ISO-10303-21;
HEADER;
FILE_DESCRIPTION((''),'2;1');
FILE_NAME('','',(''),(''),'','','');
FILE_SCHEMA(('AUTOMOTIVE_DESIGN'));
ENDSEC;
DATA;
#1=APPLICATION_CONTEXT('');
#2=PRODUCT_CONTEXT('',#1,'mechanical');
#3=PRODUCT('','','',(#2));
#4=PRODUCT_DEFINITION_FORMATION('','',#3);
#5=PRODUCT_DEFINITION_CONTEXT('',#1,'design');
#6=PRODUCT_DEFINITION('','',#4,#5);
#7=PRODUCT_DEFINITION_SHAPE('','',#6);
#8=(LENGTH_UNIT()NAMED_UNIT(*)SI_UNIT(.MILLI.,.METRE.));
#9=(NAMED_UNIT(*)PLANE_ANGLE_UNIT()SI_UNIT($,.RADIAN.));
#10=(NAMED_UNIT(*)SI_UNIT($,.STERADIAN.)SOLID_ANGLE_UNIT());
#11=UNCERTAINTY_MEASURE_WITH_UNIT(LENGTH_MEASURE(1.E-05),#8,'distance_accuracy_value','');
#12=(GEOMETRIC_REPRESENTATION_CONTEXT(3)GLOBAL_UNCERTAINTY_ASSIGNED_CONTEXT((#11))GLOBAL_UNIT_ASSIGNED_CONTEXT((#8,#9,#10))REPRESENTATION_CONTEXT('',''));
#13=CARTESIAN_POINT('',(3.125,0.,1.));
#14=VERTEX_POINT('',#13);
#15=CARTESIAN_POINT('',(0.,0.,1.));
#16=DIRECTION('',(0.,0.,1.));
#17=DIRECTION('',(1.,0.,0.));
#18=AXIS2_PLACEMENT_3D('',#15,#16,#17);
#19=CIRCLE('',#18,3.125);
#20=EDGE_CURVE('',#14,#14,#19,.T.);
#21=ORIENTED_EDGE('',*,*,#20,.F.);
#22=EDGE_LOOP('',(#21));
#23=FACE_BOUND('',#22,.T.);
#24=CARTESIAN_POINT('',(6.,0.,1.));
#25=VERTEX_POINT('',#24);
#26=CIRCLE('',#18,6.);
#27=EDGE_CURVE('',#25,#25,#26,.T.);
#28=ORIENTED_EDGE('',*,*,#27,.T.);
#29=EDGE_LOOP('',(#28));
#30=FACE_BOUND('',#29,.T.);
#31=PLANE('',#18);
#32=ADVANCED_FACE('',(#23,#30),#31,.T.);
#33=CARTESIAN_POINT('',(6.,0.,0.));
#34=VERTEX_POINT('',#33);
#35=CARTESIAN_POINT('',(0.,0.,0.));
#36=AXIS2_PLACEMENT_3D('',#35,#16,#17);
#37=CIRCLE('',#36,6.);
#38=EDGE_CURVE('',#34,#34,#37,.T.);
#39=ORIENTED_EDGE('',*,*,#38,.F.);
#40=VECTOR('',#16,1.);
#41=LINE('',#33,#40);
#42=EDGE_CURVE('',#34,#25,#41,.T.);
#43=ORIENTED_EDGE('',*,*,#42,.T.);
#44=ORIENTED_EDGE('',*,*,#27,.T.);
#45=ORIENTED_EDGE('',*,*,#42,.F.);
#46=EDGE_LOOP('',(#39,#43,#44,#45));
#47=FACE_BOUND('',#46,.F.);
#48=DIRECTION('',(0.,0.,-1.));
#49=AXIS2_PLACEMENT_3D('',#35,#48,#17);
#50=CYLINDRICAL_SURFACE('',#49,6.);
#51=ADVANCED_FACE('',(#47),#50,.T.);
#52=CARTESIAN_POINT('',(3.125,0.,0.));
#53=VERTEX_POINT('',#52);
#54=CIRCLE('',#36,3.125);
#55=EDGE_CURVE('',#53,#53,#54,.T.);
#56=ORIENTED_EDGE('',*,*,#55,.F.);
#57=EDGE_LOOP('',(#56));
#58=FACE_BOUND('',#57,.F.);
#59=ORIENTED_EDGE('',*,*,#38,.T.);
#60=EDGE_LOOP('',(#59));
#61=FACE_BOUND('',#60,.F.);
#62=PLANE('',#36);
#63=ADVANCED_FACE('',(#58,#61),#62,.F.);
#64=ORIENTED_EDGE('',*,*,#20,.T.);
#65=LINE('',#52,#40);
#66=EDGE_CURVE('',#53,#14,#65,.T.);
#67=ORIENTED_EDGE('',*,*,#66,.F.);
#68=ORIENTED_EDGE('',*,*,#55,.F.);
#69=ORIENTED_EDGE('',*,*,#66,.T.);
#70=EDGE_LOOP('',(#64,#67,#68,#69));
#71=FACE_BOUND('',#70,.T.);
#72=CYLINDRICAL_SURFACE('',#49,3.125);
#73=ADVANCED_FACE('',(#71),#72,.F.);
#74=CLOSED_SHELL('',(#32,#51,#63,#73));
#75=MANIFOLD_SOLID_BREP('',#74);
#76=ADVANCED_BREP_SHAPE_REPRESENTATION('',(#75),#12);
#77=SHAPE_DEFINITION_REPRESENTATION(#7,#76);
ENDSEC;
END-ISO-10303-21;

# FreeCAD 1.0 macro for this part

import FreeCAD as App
import Part
import Sketcher

V = App.Vector

doc = App.newDocument("Part")
body = doc.addObject("PartDesign::Body", "Body")

# Sketch on XY plane
sketch1 = body.newObject("Sketcher::SketchObject", "Sketch")
sketch1.AttachmentSupport = (doc.getObject("XY_Plane"), [""])
sketch1.MapMode = "FlatFace"
sketch1.addGeometry([
    Part.Circle(V(0, 0, 0), V(0, 0, 1), 6),
    Part.Circle(V(0, 0, 0), V(0, 0, 1), 3.125),
], False)
sketch1.addConstraint([
    Sketcher.Constraint("Coincident", 0, 3, -1, 1),
    Sketcher.Constraint("Coincident", 1, 3, -1, 1),
    Sketcher.Constraint("Diameter", 0, 12.0),
    Sketcher.Constraint("Diameter", 1, 6.25),
])
pad1 = body.newObject("PartDesign::Pad", "Pad")
pad1.Profile = sketch1
pad1.Length = 1

doc.recompute()
